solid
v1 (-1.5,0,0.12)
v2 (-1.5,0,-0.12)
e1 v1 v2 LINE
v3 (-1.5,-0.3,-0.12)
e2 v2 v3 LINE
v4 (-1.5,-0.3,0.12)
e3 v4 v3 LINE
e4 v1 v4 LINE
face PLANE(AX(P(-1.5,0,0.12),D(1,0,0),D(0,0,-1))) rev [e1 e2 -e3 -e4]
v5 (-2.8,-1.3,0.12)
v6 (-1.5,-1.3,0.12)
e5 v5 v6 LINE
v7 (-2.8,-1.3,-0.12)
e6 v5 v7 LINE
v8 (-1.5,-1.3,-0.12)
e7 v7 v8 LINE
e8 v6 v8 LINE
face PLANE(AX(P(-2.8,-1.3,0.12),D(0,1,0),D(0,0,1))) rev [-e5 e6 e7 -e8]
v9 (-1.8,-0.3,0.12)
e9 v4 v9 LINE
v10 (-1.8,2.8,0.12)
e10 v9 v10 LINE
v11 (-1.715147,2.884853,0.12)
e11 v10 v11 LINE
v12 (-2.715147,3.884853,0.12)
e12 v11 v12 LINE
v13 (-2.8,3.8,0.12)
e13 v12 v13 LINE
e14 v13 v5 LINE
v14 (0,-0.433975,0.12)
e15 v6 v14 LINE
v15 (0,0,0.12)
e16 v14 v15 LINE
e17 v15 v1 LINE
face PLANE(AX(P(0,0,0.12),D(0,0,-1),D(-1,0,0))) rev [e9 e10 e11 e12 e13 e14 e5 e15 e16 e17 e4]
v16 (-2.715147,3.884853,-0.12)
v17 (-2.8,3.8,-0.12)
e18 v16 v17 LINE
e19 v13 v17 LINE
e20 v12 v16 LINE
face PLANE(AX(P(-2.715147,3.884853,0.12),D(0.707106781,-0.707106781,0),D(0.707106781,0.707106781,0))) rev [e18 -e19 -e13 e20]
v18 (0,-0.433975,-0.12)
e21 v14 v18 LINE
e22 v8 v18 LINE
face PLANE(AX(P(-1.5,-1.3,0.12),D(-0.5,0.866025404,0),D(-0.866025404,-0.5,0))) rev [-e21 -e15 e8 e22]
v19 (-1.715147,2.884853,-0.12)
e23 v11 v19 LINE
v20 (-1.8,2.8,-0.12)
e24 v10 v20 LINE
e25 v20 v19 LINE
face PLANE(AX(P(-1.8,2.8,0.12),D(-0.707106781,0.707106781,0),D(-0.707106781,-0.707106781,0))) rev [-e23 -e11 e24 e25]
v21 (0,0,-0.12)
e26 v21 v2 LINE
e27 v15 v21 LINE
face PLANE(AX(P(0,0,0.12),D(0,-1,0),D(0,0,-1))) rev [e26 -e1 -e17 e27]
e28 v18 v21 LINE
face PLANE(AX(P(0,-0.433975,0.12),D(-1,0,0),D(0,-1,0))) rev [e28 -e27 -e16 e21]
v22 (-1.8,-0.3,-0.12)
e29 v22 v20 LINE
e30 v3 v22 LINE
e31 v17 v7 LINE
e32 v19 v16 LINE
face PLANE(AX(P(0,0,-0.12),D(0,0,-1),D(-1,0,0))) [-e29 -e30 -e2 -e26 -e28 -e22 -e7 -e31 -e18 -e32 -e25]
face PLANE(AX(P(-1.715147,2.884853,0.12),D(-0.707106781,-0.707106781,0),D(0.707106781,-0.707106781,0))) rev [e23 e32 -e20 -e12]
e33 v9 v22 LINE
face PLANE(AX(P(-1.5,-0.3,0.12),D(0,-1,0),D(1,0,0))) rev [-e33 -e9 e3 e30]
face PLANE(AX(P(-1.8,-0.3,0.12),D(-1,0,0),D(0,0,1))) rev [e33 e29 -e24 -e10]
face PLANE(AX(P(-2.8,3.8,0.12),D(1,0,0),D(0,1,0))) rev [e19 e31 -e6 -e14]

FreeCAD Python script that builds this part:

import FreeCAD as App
import Part
import Sketcher
from FreeCAD import Vector
Q = App.Units.Quantity

doc = App.newDocument("Part")
body = doc.addObject("PartDesign::Body", "Body")

# Sketch on XY plane
sketch1 = doc.addObject("Sketcher::SketchObject", "Sketch")
body.addObject(sketch1)
sketch1.AttachmentSupport = (doc.XY_Plane, [""])
sketch1.MapMode = "FlatFace"
sketch1.addGeometry(Part.LineSegment(Vector(0, 0, 0), Vector(-1.5, 0, 0)), False)
sketch1.addGeometry(Part.LineSegment(Vector(-1.5, 0, 0), Vector(-1.5, -0.3, 0)), False)
sketch1.addGeometry(Part.LineSegment(Vector(-1.5, -0.3, 0), Vector(-1.8, -0.3, 0)), False)
sketch1.addGeometry(Part.LineSegment(Vector(-1.8, -0.3, 0), Vector(-1.8, 2.8, 0)), False)
sketch1.addGeometry(Part.LineSegment(Vector(-1.8, 2.8, 0), Vector(-1.72, 2.88, 0)), False)
sketch1.addGeometry(Part.LineSegment(Vector(-1.72, 2.88, 0), Vector(-2.72, 3.88, 0)), False)
sketch1.addGeometry(Part.LineSegment(Vector(-2.72, 3.88, 0), Vector(-2.8, 3.8, 0)), False)
sketch1.addGeometry(Part.LineSegment(Vector(-2.8, 3.8, 0), Vector(-2.8, -1.3, 0)), False)
sketch1.addGeometry(Part.LineSegment(Vector(-2.8, -1.3, 0), Vector(-1.5, -1.3, 0)), False)
sketch1.addGeometry(Part.LineSegment(Vector(-1.5, -1.3, 0), Vector(0, -0.43, 0)), False)
sketch1.addGeometry(Part.LineSegment(Vector(0, -0.43, 0), Vector(0, 0, 0)), False)
sketch1.addConstraint(Sketcher.Constraint("Coincident", 0, 2, 1, 1))
sketch1.addConstraint(Sketcher.Constraint("Coincident", 1, 2, 2, 1))
sketch1.addConstraint(Sketcher.Constraint("Coincident", 2, 2, 3, 1))
sketch1.addConstraint(Sketcher.Constraint("Coincident", 3, 2, 4, 1))
sketch1.addConstraint(Sketcher.Constraint("Coincident", 4, 2, 5, 1))
sketch1.addConstraint(Sketcher.Constraint("Coincident", 5, 2, 6, 1))
sketch1.addConstraint(Sketcher.Constraint("Coincident", 6, 2, 7, 1))
sketch1.addConstraint(Sketcher.Constraint("Coincident", 7, 2, 8, 1))
sketch1.addConstraint(Sketcher.Constraint("Coincident", 8, 2, 9, 1))
sketch1.addConstraint(Sketcher.Constraint("Coincident", 9, 2, 10, 1))
sketch1.addConstraint(Sketcher.Constraint("Coincident", 10, 2, 0, 1))
sketch1.addConstraint(Sketcher.Constraint("Horizontal", 0))
sketch1.addConstraint(Sketcher.Constraint("Vertical", 1))
sketch1.addConstraint(Sketcher.Constraint("Horizontal", 2))
sketch1.addConstraint(Sketcher.Constraint("Vertical", 3))
sketch1.addConstraint(Sketcher.Constraint("Vertical", 7))
sketch1.addConstraint(Sketcher.Constraint("Horizontal", 8))
sketch1.addConstraint(Sketcher.Constraint("Vertical", 10))
sketch1.addConstraint(Sketcher.Constraint("Coincident", 10, 2, -1, 1))
sketch1.addConstraint(Sketcher.Constraint("Perpendicular", 4, 5))
sketch1.addConstraint(Sketcher.Constraint("Perpendicular", 5, 6))
sketch1.addConstraint(Sketcher.Constraint("Vertical", 1, 2, 8, 2))
sketch1.addConstraint(Sketcher.Constraint("Equal", 2, 1))
sketch1.addConstraint(Sketcher.Constraint("Equal", 4, 6))
sketch1.addConstraint(Sketcher.Constraint("Angle", 4, Q("45 deg")))
sketch1.addConstraint(Sketcher.Constraint("Angle", 9, Q("30 deg")))
sketch1.addConstraint(Sketcher.Constraint("DistanceX", 0, 2, 0, 1, 1.5))
sketch1.addConstraint(Sketcher.Constraint("DistanceX", 2, 2, 2, 1, 0.3))
sketch1.addConstraint(Sketcher.Constraint("DistanceX", 8, 1, 8, 2, 1.3))
sketch1.addConstraint(Sketcher.Constraint("DistanceY", 3, 1, 3, 2, 3.1))
sketch1.addConstraint(Sketcher.Constraint("DistanceY", 7, 2, 7, 1, 5.1))
sketch1.addConstraint(Sketcher.Constraint("Distance", 4, 0.12))
pad1 = doc.addObject("PartDesign::Pad", "Pad")
body.addObject(pad1)
pad1.Profile = sketch1
pad1.Length = 0.24
pad1.Midplane = True

doc.recompute()
